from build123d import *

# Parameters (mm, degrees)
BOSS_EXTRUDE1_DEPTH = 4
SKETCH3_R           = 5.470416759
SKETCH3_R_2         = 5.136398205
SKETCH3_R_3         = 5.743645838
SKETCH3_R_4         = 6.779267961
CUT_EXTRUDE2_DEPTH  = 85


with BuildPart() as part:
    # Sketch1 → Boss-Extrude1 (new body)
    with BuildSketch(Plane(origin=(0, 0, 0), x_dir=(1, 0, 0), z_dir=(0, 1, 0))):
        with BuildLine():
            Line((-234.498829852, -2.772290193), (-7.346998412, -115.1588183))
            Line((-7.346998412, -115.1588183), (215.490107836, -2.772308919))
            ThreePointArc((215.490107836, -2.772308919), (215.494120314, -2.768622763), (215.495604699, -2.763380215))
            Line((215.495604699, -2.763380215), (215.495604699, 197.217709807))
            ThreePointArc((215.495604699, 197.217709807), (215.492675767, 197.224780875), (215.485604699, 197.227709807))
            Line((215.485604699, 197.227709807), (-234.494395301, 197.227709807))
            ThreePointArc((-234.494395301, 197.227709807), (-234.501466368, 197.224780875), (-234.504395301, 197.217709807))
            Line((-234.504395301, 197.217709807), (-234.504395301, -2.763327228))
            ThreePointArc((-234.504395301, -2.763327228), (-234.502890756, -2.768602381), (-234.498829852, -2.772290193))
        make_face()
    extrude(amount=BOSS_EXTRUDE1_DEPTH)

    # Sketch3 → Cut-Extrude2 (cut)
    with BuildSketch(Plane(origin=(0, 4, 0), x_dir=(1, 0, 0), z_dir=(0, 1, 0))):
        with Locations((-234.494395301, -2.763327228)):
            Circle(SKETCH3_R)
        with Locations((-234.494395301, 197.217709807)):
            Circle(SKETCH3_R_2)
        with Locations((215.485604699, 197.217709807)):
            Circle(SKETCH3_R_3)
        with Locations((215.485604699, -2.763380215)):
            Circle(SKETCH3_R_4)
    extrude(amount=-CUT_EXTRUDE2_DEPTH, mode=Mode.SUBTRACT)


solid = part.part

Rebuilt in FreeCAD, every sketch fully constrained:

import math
import FreeCAD as App
import Part
import Sketcher

V = App.Vector

doc = App.newDocument("Part")
params = doc.addObject("Spreadsheet::Sheet", "Params")
for row, (alias, value) in enumerate([
    ("sketch1_radius", "0.01 mm"),
    ("sketch1_width", "449.98 mm"),
    ("pad1_length", "4 mm"),
    ("pocket1_length", "85 mm"),
], start=1):
    params.set(f"A{row}", alias)
    params.set(f"B{row}", "=" + value)
    params.setAlias(f"B{row}", alias)

body = doc.addObject("PartDesign::Body", "Body")

sketch1 = body.newObject("Sketcher::SketchObject", "Sketch")
sketch1.AttachmentSupport = (doc.getObject("XZ_Plane"), [""])
sketch1.MapMode = "FlatFace"
sketch1.addGeometry([
    Part.LineSegment(V(-234.499, 2.772, 0), V(-7.347, 115.159, 0)),
    Part.LineSegment(V(-7.347, 115.159, 0), V(215.49, 2.772, 0)),
    Part.ArcOfCircle(Part.Circle(V(215.486, 2.763, 0), V(0, 0, 1), 0.01), math.radians(0), math.radians(63)),
    Part.LineSegment(V(215.496, 2.763, 0), V(215.496, -197.218, 0)),
    Part.ArcOfCircle(Part.Circle(V(215.486, -197.218, 0), V(0, 0, 1), 0.01), math.radians(-90), math.radians(0)),
    Part.LineSegment(V(215.486, -197.228, 0), V(-234.494, -197.228, 0)),
    Part.ArcOfCircle(Part.Circle(V(-234.494, -197.218, 0), V(0, 0, 1), 0.01), math.radians(-180), math.radians(-90)),
    Part.LineSegment(V(-234.504, -197.218, 0), V(-234.504, 2.763, 0)),
    Part.ArcOfCircle(Part.Circle(V(-234.494, 2.763, 0), V(0, 0, 1), 0.01), math.radians(116), math.radians(180)),
], False)
sketch1.addConstraint([
    Sketcher.Constraint("Coincident", 0, 2, 1, 1),
    Sketcher.Constraint("Tangent", 1, 2, 2, 2),
    Sketcher.Constraint("Tangent", 2, 1, 3, 1),
    Sketcher.Constraint("Tangent", 3, 2, 4, 2),
    Sketcher.Constraint("Tangent", 4, 1, 5, 1),
    Sketcher.Constraint("Tangent", 5, 2, 6, 2),
    Sketcher.Constraint("Tangent", 6, 1, 7, 1),
    Sketcher.Constraint("Tangent", 7, 2, 8, 2),
    Sketcher.Constraint("Tangent", 8, 1, 0, 1),
    Sketcher.Constraint("Vertical", 3),
    Sketcher.Constraint("Horizontal", 5),
    Sketcher.Constraint("Vertical", 7),
    Sketcher.Constraint("Equal", 2, 4),
    Sketcher.Constraint("Equal", 4, 6),
    Sketcher.Constraint("Equal", 6, 8),
    Sketcher.Constraint("Radius", 2, 0.01),
    Sketcher.Constraint("DistanceY", 5, 2, 8, 1, 200.0),
    Sketcher.Constraint("DistanceX", 5, 2, 5, 1, 449.98),
    Sketcher.Constraint("DistanceX", 0, 2, -1, 1, 7.346998),
    Sketcher.Constraint("DistanceY", 3, 2, 3, 1, 199.98109),
    Sketcher.Constraint("Distance", 0, 253.433791),
    Sketcher.Constraint("DistanceY", -1, 1, 2, 3, 2.76338),
    Sketcher.Constraint("DistanceY", -1, 1, 0, 2, 115.158818),
])
sketch1.setExpression("Constraints[15]", "Params.sketch1_radius")
sketch1.setExpression("Constraints[17]", "Params.sketch1_width")
pad1 = body.newObject("PartDesign::Pad", "Pad")
pad1.Profile = sketch1
pad1.setExpression("Length", "Params.pad1_length")
pad1.Reversed = True

sketch2 = body.newObject("Sketcher::SketchObject", "Sketch001")
sketch2.AttachmentSupport = (doc.getObject("XZ_Plane"), [""])
sketch2.MapMode = "FlatFace"
sketch2.AttachmentOffset = App.Placement(V(0, 0, -4), App.Rotation())
sketch2.addGeometry([
    Part.Circle(V(-234, 3, 0), V(0, 0, 1), 5),
    Part.Circle(V(-234, -197, 0), V(0, 0, 1), 5),
    Part.Circle(V(215, -197, 0), V(0, 0, 1), 6),
    Part.Circle(V(215, 3, 0), V(0, 0, 1), 7),
], False)
sketch2.addConstraint([
    Sketcher.Constraint("Horizontal", 1, 3, 2, 3),
    Sketcher.Constraint("Vertical", 0, 3, 1, 3),
    Sketcher.Constraint("Vertical", 2, 3, 3, 3),
    Sketcher.Constraint("Diameter", 2, 11.487292),
    Sketcher.Constraint("DistanceX", 1, 3, 2, 3, 449.98),
    Sketcher.Constraint("Diameter", 0, 10.940834),
    Sketcher.Constraint("Diameter", 1, 10.272796),
    Sketcher.Constraint("Diameter", 3, 13.558536),
    Sketcher.Constraint("DistanceY", 1, 3, -1, 1, 197.21771),
    Sketcher.Constraint("DistanceY", -1, 1, 3, 3, 2.76338),
    Sketcher.Constraint("DistanceX", 0, 3, -1, 1, 234.494395),
    Sketcher.Constraint("DistanceY", -1, 1, 0, 3, 2.763327),
])
pocket1 = body.newObject("PartDesign::Pocket", "Pocket")
pocket1.Profile = sketch2
pocket1.setExpression("Length", "Params.pocket1_length")
pocket1.Reversed = True

doc.recompute()
